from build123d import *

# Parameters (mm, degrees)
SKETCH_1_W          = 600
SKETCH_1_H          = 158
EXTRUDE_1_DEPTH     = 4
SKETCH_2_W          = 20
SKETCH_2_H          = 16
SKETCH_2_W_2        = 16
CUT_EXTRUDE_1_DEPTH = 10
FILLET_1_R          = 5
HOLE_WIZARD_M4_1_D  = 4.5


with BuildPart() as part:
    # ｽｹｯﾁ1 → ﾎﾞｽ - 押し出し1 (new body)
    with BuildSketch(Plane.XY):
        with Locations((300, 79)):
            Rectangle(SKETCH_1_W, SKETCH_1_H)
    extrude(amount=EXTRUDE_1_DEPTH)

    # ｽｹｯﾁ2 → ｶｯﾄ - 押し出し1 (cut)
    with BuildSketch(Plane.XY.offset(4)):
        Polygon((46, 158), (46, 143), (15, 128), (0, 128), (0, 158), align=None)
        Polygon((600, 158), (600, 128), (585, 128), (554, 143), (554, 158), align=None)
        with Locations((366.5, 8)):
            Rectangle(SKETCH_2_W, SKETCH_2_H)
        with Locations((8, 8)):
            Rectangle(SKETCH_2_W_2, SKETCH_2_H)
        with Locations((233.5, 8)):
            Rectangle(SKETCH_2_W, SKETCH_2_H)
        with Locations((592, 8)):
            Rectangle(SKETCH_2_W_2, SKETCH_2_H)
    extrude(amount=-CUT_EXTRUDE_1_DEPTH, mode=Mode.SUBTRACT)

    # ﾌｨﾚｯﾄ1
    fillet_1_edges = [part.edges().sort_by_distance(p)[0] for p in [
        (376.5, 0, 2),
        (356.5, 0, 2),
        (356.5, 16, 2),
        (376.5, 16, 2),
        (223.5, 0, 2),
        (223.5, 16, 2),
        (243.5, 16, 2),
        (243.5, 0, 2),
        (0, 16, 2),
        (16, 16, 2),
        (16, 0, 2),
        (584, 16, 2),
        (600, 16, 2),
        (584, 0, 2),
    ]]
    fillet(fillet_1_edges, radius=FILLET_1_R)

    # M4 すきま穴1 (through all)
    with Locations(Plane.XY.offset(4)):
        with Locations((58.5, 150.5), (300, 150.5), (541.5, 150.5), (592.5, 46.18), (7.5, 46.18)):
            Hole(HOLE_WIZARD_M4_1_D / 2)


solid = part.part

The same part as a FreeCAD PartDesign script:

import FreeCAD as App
import Part
import Sketcher

V = App.Vector


def edges_at(feature, points):
    """Names of the edges that pass closest to the given points."""
    edges = feature.Shape.Edges
    near = lambda p: min(range(len(edges)), key=lambda i: edges[i].distToShape(Part.Vertex(*p))[0])
    return sorted({f"Edge{near(p) + 1}" for p in points})

doc = App.newDocument("Part")
params = doc.addObject("Spreadsheet::Sheet", "Params")
for row, (alias, value) in enumerate([
    ("sketch1_width", "600 mm"),
    ("sketch1_height", "158 mm"),
    ("pad1_length", "4 mm"),
    ("sketch2_width", "46 mm"),
    ("sketch2_width2", "15 mm"),
    ("sketch2_width3", "20 mm"),
    ("sketch2_width4", "16 mm"),
    ("sketch2_height", "30 mm"),
    ("pocket1_length", "10 mm"),
    ("fillet_radius", "5 mm"),
    ("sketch3_diameter", "4.5 mm"),
    ("hole_diameter", "4.5 mm"),
], start=1):
    params.set(f"A{row}", alias)
    params.set(f"B{row}", "=" + value)
    params.setAlias(f"B{row}", alias)

body = doc.addObject("PartDesign::Body", "Body")

# Sketch on XY plane
sketch1 = body.newObject("Sketcher::SketchObject", "Sketch")
sketch1.AttachmentSupport = (doc.getObject("XY_Plane"), [""])
sketch1.MapMode = "FlatFace"
sketch1.addGeometry(Part.LineSegment(V(0, 158, 0), V(0, 0, 0)), False)
sketch1.addGeometry(Part.LineSegment(V(0, 0, 0), V(600, 0, 0)), False)
sketch1.addGeometry(Part.LineSegment(V(600, 0, 0), V(600, 158, 0)), False)
sketch1.addGeometry(Part.LineSegment(V(600, 158, 0), V(0, 158, 0)), False)
sketch1.addConstraint(Sketcher.Constraint("Coincident", 0, 2, 1, 1))
sketch1.addConstraint(Sketcher.Constraint("Coincident", 1, 2, 2, 1))
sketch1.addConstraint(Sketcher.Constraint("Coincident", 2, 2, 3, 1))
sketch1.addConstraint(Sketcher.Constraint("Coincident", 3, 2, 0, 1))
sketch1.addConstraint(Sketcher.Constraint("Vertical", 0))
sketch1.addConstraint(Sketcher.Constraint("Horizontal", 1))
sketch1.addConstraint(Sketcher.Constraint("Vertical", 2))
sketch1.addConstraint(Sketcher.Constraint("Horizontal", 3))
sketch1.addConstraint(Sketcher.Constraint("Coincident", 0, 2, -1, 1))
sketch1.addConstraint(Sketcher.Constraint("DistanceX", 1, 1, 1, 2, 600.0))
sketch1.addConstraint(Sketcher.Constraint("DistanceY", 0, 2, 0, 1, 158.0))
sketch1.setExpression("Constraints[9]", "Params.sketch1_width")
sketch1.setExpression("Constraints[10]", "Params.sketch1_height")
pad1 = body.newObject("PartDesign::Pad", "Pad")
pad1.Profile = sketch1
pad1.setExpression("Length", "Params.pad1_length")

# Sketch on XY plane
sketch2 = body.newObject("Sketcher::SketchObject", "Sketch001")
sketch2.AttachmentSupport = (doc.getObject("XY_Plane"), [""])
sketch2.MapMode = "FlatFace"
sketch2.AttachmentOffset = App.Placement(V(0, 0, 4), App.Rotation())
sketch2.addGeometry(Part.LineSegment(V(46, 143, 0), V(46, 158, 0)), False)
sketch2.addGeometry(Part.LineSegment(V(46, 158, 0), V(0, 158, 0)), False)
sketch2.addGeometry(Part.LineSegment(V(0, 158, 0), V(0, 128, 0)), False)
sketch2.addGeometry(Part.LineSegment(V(0, 128, 0), V(15, 128, 0)), False)
sketch2.addGeometry(Part.LineSegment(V(15, 128, 0), V(46, 143, 0)), False)
sketch2.addGeometry(Part.LineSegment(V(600, 128, 0), V(600, 158, 0)), False)
sketch2.addGeometry(Part.LineSegment(V(600, 158, 0), V(554, 158, 0)), False)
sketch2.addGeometry(Part.LineSegment(V(554, 158, 0), V(554, 143, 0)), False)
sketch2.addGeometry(Part.LineSegment(V(554, 143, 0), V(585, 128, 0)), False)
sketch2.addGeometry(Part.LineSegment(V(585, 128, 0), V(600, 128, 0)), False)
sketch2.addGeometry(Part.LineSegment(V(356.5, 16, 0), V(356.5, 0, 0)), False)
sketch2.addGeometry(Part.LineSegment(V(356.5, 0, 0), V(376.5, 0, 0)), False)
sketch2.addGeometry(Part.LineSegment(V(376.5, 0, 0), V(376.5, 16, 0)), False)
sketch2.addGeometry(Part.LineSegment(V(376.5, 16, 0), V(356.5, 16, 0)), False)
sketch2.addGeometry(Part.LineSegment(V(0, 16, 0), V(0, 0, 0)), False)
sketch2.addGeometry(Part.LineSegment(V(0, 0, 0), V(16, 0, 0)), False)
sketch2.addGeometry(Part.LineSegment(V(16, 0, 0), V(16, 16, 0)), False)
sketch2.addGeometry(Part.LineSegment(V(16, 16, 0), V(0, 16, 0)), False)
sketch2.addGeometry(Part.LineSegment(V(223.5, 16, 0), V(223.5, 0, 0)), False)
sketch2.addGeometry(Part.LineSegment(V(223.5, 0, 0), V(243.5, 0, 0)), False)
sketch2.addGeometry(Part.LineSegment(V(243.5, 0, 0), V(243.5, 16, 0)), False)
sketch2.addGeometry(Part.LineSegment(V(243.5, 16, 0), V(223.5, 16, 0)), False)
sketch2.addGeometry(Part.LineSegment(V(584, 16, 0), V(584, 0, 0)), False)
sketch2.addGeometry(Part.LineSegment(V(584, 0, 0), V(600, 0, 0)), False)
sketch2.addGeometry(Part.LineSegment(V(600, 0, 0), V(600, 16, 0)), False)
sketch2.addGeometry(Part.LineSegment(V(600, 16, 0), V(584, 16, 0)), False)
sketch2.addConstraint(Sketcher.Constraint("Coincident", 0, 2, 1, 1))
sketch2.addConstraint(Sketcher.Constraint("Coincident", 1, 2, 2, 1))
sketch2.addConstraint(Sketcher.Constraint("Coincident", 2, 2, 3, 1))
sketch2.addConstraint(Sketcher.Constraint("Coincident", 3, 2, 4, 1))
sketch2.addConstraint(Sketcher.Constraint("Coincident", 4, 2, 0, 1))
sketch2.addConstraint(Sketcher.Constraint("Coincident", 5, 2, 6, 1))
sketch2.addConstraint(Sketcher.Constraint("Coincident", 6, 2, 7, 1))
sketch2.addConstraint(Sketcher.Constraint("Coincident", 7, 2, 8, 1))
sketch2.addConstraint(Sketcher.Constraint("Coincident", 8, 2, 9, 1))
sketch2.addConstraint(Sketcher.Constraint("Coincident", 9, 2, 5, 1))
sketch2.addConstraint(Sketcher.Constraint("Coincident", 10, 2, 11, 1))
sketch2.addConstraint(Sketcher.Constraint("Coincident", 11, 2, 12, 1))
sketch2.addConstraint(Sketcher.Constraint("Coincident", 12, 2, 13, 1))
sketch2.addConstraint(Sketcher.Constraint("Coincident", 13, 2, 10, 1))
sketch2.addConstraint(Sketcher.Constraint("Coincident", 14, 2, 15, 1))
sketch2.addConstraint(Sketcher.Constraint("Coincident", 15, 2, 16, 1))
sketch2.addConstraint(Sketcher.Constraint("Coincident", 16, 2, 17, 1))
sketch2.addConstraint(Sketcher.Constraint("Coincident", 17, 2, 14, 1))
sketch2.addConstraint(Sketcher.Constraint("Coincident", 18, 2, 19, 1))
sketch2.addConstraint(Sketcher.Constraint("Coincident", 19, 2, 20, 1))
sketch2.addConstraint(Sketcher.Constraint("Coincident", 20, 2, 21, 1))
sketch2.addConstraint(Sketcher.Constraint("Coincident", 21, 2, 18, 1))
sketch2.addConstraint(Sketcher.Constraint("Coincident", 22, 2, 23, 1))
sketch2.addConstraint(Sketcher.Constraint("Coincident", 23, 2, 24, 1))
sketch2.addConstraint(Sketcher.Constraint("Coincident", 24, 2, 25, 1))
sketch2.addConstraint(Sketcher.Constraint("Coincident", 25, 2, 22, 1))
sketch2.addConstraint(Sketcher.Constraint("Vertical", 0))
sketch2.addConstraint(Sketcher.Constraint("Horizontal", 1))
sketch2.addConstraint(Sketcher.Constraint("Vertical", 2))
sketch2.addConstraint(Sketcher.Constraint("Horizontal", 3))
sketch2.addConstraint(Sketcher.Constraint("Vertical", 5))
sketch2.addConstraint(Sketcher.Constraint("Horizontal", 6))
sketch2.addConstraint(Sketcher.Constraint("Vertical", 7))
sketch2.addConstraint(Sketcher.Constraint("Horizontal", 9))
sketch2.addConstraint(Sketcher.Constraint("Vertical", 10))
sketch2.addConstraint(Sketcher.Constraint("Horizontal", 11))
sketch2.addConstraint(Sketcher.Constraint("Vertical", 12))
sketch2.addConstraint(Sketcher.Constraint("Horizontal", 13))
sketch2.addConstraint(Sketcher.Constraint("Vertical", 14))
sketch2.addConstraint(Sketcher.Constraint("Horizontal", 15))
sketch2.addConstraint(Sketcher.Constraint("Vertical", 16))
sketch2.addConstraint(Sketcher.Constraint("Horizontal", 17))
sketch2.addConstraint(Sketcher.Constraint("Vertical", 18))
sketch2.addConstraint(Sketcher.Constraint("Horizontal", 19))
sketch2.addConstraint(Sketcher.Constraint("Vertical", 20))
sketch2.addConstraint(Sketcher.Constraint("Horizontal", 21))
sketch2.addConstraint(Sketcher.Constraint("Vertical", 22))
sketch2.addConstraint(Sketcher.Constraint("Horizontal", 23))
sketch2.addConstraint(Sketcher.Constraint("Vertical", 24))
sketch2.addConstraint(Sketcher.Constraint("Horizontal", 25))
sketch2.addConstraint(Sketcher.Constraint("Coincident", 14, 2, -1, 1))
sketch2.addConstraint(Sketcher.Constraint("PointOnObject", 1, 2, -2))
sketch2.addConstraint(Sketcher.Constraint("PointOnObject", 10, 2, -1))
sketch2.addConstraint(Sketcher.Constraint("PointOnObject", 18, 2, -1))
sketch2.addConstraint(Sketcher.Constraint("PointOnObject", 22, 2, -1))
sketch2.addConstraint(Sketcher.Constraint("Horizontal", 1, 2, 5, 2))
sketch2.addConstraint(Sketcher.Constraint("Horizontal", 4, 2, 7, 2))
sketch2.addConstraint(Sketcher.Constraint("Horizontal", 3, 2, 8, 2))
sketch2.addConstraint(Sketcher.Constraint("Horizontal", 13, 2, 16, 2))
sketch2.addConstraint(Sketcher.Constraint("Horizontal", 17, 2, 20, 2))
sketch2.addConstraint(Sketcher.Constraint("Horizontal", 21, 2, 24, 2))
sketch2.addConstraint(Sketcher.Constraint("Vertical", 9, 2, 23, 2))
sketch2.addConstraint(Sketcher.Constraint("Equal", 1, 6))
sketch2.addConstraint(Sketcher.Constraint("Equal", 3, 9))
sketch2.addConstraint(Sketcher.Constraint("Equal", 13, 19))
sketch2.addConstraint(Sketcher.Constraint("Equal", 17, 23))
sketch2.addConstraint(Sketcher.Constraint("Equal", 9, 0))
sketch2.addConstraint(Sketcher.Constraint("Equal", 25, 10))
sketch2.addConstraint(Sketcher.Constraint("DistanceX", 1, 2, 1, 1, 46.0))
sketch2.addConstraint(Sketcher.Constraint("DistanceX", 3, 1, 3, 2, 15.0))
sketch2.addConstraint(Sketcher.Constraint("DistanceX", 11, 1, 11, 2, 20.0))
sketch2.addConstraint(Sketcher.Constraint("DistanceX", 15, 1, 15, 2, 16.0))
sketch2.addConstraint(Sketcher.Constraint("DistanceY", 2, 2, 2, 1, 30.0))
sketch2.addConstraint(Sketcher.Constraint("DistanceY", -1, 1, 0, 2, 158.0))
sketch2.addConstraint(Sketcher.Constraint("DistanceX", -1, 1, 5, 2, 600.0))
sketch2.addConstraint(Sketcher.Constraint("DistanceX", 18, 2, 10, 2, 133.0))
sketch2.addConstraint(Sketcher.Constraint("DistanceX", -1, 1, 10, 2, 356.5))
sketch2.setExpression("Constraints[68]", "Params.sketch2_width")
sketch2.setExpression("Constraints[69]", "Params.sketch2_width2")
sketch2.setExpression("Constraints[70]", "Params.sketch2_width3")
sketch2.setExpression("Constraints[71]", "Params.sketch2_width4")
sketch2.setExpression("Constraints[72]", "Params.sketch2_height")
pocket1 = body.newObject("PartDesign::Pocket", "Pocket")
pocket1.Profile = sketch2
pocket1.setExpression("Length", "Params.pocket1_length")
doc.recompute()

fillet = body.newObject("PartDesign::Fillet", "Fillet")
fillet.Base = (pocket1, edges_at(pocket1, [
    (376.5, 0, 2),
    (356.5, 0, 2),
    (356.5, 16, 2),
    (376.5, 16, 2),
    (223.5, 0, 2),
    (223.5, 16, 2),
    (243.5, 16, 2),
    (243.5, 0, 2),
    (0, 16, 2),
    (16, 16, 2),
    (16, 0, 2),
    (584, 16, 2),
    (600, 16, 2),
    (584, 0, 2),
]))
fillet.setExpression("Radius", "Params.fillet_radius")

# Sketch on XY plane
sketch3 = body.newObject("Sketcher::SketchObject", "Sketch002")
sketch3.AttachmentSupport = (doc.getObject("XY_Plane"), [""])
sketch3.MapMode = "FlatFace"
sketch3.AttachmentOffset = App.Placement(V(0, 0, 4), App.Rotation())
sketch3.addGeometry(Part.Circle(V(58.5, 150.5, 0), V(0, 0, 1), 2.25), False)
sketch3.addGeometry(Part.Circle(V(300, 150.5, 0), V(0, 0, 1), 2.25), False)
sketch3.addGeometry(Part.Circle(V(541.5, 150.5, 0), V(0, 0, 1), 2.25), False)
sketch3.addGeometry(Part.Circle(V(592.5, 46.18, 0), V(0, 0, 1), 2.25), False)
sketch3.addGeometry(Part.Circle(V(7.5, 46.18, 0), V(0, 0, 1), 2.25), False)
sketch3.addConstraint(Sketcher.Constraint("Equal", 0, 1))
sketch3.addConstraint(Sketcher.Constraint("Equal", 1, 2))
sketch3.addConstraint(Sketcher.Constraint("Equal", 2, 3))
sketch3.addConstraint(Sketcher.Constraint("Equal", 3, 4))
sketch3.addConstraint(Sketcher.Constraint("Horizontal", 0, 3, 1, 3))
sketch3.addConstraint(Sketcher.Constraint("Horizontal", 1, 3, 2, 3))
sketch3.addConstraint(Sketcher.Constraint("Horizontal", 3, 3, 4, 3))
sketch3.addConstraint(Sketcher.Constraint("Diameter", 0, 4.5))
sketch3.addConstraint(Sketcher.Constraint("DistanceX", -1, 1, 1, 3, 300.0))
sketch3.addConstraint(Sketcher.Constraint("DistanceX", 0, 3, 2, 3, 483.0))
sketch3.addConstraint(Sketcher.Constraint("DistanceX", 2, 3, 3, 3, 51.0))
sketch3.addConstraint(Sketcher.Constraint("DistanceX", 4, 3, 0, 3, 51.0))
sketch3.addConstraint(Sketcher.Constraint("DistanceX", -1, 1, 0, 3, 58.5))
sketch3.addConstraint(Sketcher.Constraint("DistanceY", -1, 1, 0, 3, 150.5))
sketch3.addConstraint(Sketcher.Constraint("DistanceY", -1, 1, 3, 3, 46.18))
sketch3.setExpression("Constraints[7]", "Params.sketch3_diameter")
doc.recompute()
hole = body.newObject("PartDesign::Hole", "Hole")
hole.Profile = sketch3
hole.ThreadType = "None"
hole.setExpression("Diameter", "Params.hole_diameter")
hole.DepthType = "ThroughAll"

doc.recompute()
